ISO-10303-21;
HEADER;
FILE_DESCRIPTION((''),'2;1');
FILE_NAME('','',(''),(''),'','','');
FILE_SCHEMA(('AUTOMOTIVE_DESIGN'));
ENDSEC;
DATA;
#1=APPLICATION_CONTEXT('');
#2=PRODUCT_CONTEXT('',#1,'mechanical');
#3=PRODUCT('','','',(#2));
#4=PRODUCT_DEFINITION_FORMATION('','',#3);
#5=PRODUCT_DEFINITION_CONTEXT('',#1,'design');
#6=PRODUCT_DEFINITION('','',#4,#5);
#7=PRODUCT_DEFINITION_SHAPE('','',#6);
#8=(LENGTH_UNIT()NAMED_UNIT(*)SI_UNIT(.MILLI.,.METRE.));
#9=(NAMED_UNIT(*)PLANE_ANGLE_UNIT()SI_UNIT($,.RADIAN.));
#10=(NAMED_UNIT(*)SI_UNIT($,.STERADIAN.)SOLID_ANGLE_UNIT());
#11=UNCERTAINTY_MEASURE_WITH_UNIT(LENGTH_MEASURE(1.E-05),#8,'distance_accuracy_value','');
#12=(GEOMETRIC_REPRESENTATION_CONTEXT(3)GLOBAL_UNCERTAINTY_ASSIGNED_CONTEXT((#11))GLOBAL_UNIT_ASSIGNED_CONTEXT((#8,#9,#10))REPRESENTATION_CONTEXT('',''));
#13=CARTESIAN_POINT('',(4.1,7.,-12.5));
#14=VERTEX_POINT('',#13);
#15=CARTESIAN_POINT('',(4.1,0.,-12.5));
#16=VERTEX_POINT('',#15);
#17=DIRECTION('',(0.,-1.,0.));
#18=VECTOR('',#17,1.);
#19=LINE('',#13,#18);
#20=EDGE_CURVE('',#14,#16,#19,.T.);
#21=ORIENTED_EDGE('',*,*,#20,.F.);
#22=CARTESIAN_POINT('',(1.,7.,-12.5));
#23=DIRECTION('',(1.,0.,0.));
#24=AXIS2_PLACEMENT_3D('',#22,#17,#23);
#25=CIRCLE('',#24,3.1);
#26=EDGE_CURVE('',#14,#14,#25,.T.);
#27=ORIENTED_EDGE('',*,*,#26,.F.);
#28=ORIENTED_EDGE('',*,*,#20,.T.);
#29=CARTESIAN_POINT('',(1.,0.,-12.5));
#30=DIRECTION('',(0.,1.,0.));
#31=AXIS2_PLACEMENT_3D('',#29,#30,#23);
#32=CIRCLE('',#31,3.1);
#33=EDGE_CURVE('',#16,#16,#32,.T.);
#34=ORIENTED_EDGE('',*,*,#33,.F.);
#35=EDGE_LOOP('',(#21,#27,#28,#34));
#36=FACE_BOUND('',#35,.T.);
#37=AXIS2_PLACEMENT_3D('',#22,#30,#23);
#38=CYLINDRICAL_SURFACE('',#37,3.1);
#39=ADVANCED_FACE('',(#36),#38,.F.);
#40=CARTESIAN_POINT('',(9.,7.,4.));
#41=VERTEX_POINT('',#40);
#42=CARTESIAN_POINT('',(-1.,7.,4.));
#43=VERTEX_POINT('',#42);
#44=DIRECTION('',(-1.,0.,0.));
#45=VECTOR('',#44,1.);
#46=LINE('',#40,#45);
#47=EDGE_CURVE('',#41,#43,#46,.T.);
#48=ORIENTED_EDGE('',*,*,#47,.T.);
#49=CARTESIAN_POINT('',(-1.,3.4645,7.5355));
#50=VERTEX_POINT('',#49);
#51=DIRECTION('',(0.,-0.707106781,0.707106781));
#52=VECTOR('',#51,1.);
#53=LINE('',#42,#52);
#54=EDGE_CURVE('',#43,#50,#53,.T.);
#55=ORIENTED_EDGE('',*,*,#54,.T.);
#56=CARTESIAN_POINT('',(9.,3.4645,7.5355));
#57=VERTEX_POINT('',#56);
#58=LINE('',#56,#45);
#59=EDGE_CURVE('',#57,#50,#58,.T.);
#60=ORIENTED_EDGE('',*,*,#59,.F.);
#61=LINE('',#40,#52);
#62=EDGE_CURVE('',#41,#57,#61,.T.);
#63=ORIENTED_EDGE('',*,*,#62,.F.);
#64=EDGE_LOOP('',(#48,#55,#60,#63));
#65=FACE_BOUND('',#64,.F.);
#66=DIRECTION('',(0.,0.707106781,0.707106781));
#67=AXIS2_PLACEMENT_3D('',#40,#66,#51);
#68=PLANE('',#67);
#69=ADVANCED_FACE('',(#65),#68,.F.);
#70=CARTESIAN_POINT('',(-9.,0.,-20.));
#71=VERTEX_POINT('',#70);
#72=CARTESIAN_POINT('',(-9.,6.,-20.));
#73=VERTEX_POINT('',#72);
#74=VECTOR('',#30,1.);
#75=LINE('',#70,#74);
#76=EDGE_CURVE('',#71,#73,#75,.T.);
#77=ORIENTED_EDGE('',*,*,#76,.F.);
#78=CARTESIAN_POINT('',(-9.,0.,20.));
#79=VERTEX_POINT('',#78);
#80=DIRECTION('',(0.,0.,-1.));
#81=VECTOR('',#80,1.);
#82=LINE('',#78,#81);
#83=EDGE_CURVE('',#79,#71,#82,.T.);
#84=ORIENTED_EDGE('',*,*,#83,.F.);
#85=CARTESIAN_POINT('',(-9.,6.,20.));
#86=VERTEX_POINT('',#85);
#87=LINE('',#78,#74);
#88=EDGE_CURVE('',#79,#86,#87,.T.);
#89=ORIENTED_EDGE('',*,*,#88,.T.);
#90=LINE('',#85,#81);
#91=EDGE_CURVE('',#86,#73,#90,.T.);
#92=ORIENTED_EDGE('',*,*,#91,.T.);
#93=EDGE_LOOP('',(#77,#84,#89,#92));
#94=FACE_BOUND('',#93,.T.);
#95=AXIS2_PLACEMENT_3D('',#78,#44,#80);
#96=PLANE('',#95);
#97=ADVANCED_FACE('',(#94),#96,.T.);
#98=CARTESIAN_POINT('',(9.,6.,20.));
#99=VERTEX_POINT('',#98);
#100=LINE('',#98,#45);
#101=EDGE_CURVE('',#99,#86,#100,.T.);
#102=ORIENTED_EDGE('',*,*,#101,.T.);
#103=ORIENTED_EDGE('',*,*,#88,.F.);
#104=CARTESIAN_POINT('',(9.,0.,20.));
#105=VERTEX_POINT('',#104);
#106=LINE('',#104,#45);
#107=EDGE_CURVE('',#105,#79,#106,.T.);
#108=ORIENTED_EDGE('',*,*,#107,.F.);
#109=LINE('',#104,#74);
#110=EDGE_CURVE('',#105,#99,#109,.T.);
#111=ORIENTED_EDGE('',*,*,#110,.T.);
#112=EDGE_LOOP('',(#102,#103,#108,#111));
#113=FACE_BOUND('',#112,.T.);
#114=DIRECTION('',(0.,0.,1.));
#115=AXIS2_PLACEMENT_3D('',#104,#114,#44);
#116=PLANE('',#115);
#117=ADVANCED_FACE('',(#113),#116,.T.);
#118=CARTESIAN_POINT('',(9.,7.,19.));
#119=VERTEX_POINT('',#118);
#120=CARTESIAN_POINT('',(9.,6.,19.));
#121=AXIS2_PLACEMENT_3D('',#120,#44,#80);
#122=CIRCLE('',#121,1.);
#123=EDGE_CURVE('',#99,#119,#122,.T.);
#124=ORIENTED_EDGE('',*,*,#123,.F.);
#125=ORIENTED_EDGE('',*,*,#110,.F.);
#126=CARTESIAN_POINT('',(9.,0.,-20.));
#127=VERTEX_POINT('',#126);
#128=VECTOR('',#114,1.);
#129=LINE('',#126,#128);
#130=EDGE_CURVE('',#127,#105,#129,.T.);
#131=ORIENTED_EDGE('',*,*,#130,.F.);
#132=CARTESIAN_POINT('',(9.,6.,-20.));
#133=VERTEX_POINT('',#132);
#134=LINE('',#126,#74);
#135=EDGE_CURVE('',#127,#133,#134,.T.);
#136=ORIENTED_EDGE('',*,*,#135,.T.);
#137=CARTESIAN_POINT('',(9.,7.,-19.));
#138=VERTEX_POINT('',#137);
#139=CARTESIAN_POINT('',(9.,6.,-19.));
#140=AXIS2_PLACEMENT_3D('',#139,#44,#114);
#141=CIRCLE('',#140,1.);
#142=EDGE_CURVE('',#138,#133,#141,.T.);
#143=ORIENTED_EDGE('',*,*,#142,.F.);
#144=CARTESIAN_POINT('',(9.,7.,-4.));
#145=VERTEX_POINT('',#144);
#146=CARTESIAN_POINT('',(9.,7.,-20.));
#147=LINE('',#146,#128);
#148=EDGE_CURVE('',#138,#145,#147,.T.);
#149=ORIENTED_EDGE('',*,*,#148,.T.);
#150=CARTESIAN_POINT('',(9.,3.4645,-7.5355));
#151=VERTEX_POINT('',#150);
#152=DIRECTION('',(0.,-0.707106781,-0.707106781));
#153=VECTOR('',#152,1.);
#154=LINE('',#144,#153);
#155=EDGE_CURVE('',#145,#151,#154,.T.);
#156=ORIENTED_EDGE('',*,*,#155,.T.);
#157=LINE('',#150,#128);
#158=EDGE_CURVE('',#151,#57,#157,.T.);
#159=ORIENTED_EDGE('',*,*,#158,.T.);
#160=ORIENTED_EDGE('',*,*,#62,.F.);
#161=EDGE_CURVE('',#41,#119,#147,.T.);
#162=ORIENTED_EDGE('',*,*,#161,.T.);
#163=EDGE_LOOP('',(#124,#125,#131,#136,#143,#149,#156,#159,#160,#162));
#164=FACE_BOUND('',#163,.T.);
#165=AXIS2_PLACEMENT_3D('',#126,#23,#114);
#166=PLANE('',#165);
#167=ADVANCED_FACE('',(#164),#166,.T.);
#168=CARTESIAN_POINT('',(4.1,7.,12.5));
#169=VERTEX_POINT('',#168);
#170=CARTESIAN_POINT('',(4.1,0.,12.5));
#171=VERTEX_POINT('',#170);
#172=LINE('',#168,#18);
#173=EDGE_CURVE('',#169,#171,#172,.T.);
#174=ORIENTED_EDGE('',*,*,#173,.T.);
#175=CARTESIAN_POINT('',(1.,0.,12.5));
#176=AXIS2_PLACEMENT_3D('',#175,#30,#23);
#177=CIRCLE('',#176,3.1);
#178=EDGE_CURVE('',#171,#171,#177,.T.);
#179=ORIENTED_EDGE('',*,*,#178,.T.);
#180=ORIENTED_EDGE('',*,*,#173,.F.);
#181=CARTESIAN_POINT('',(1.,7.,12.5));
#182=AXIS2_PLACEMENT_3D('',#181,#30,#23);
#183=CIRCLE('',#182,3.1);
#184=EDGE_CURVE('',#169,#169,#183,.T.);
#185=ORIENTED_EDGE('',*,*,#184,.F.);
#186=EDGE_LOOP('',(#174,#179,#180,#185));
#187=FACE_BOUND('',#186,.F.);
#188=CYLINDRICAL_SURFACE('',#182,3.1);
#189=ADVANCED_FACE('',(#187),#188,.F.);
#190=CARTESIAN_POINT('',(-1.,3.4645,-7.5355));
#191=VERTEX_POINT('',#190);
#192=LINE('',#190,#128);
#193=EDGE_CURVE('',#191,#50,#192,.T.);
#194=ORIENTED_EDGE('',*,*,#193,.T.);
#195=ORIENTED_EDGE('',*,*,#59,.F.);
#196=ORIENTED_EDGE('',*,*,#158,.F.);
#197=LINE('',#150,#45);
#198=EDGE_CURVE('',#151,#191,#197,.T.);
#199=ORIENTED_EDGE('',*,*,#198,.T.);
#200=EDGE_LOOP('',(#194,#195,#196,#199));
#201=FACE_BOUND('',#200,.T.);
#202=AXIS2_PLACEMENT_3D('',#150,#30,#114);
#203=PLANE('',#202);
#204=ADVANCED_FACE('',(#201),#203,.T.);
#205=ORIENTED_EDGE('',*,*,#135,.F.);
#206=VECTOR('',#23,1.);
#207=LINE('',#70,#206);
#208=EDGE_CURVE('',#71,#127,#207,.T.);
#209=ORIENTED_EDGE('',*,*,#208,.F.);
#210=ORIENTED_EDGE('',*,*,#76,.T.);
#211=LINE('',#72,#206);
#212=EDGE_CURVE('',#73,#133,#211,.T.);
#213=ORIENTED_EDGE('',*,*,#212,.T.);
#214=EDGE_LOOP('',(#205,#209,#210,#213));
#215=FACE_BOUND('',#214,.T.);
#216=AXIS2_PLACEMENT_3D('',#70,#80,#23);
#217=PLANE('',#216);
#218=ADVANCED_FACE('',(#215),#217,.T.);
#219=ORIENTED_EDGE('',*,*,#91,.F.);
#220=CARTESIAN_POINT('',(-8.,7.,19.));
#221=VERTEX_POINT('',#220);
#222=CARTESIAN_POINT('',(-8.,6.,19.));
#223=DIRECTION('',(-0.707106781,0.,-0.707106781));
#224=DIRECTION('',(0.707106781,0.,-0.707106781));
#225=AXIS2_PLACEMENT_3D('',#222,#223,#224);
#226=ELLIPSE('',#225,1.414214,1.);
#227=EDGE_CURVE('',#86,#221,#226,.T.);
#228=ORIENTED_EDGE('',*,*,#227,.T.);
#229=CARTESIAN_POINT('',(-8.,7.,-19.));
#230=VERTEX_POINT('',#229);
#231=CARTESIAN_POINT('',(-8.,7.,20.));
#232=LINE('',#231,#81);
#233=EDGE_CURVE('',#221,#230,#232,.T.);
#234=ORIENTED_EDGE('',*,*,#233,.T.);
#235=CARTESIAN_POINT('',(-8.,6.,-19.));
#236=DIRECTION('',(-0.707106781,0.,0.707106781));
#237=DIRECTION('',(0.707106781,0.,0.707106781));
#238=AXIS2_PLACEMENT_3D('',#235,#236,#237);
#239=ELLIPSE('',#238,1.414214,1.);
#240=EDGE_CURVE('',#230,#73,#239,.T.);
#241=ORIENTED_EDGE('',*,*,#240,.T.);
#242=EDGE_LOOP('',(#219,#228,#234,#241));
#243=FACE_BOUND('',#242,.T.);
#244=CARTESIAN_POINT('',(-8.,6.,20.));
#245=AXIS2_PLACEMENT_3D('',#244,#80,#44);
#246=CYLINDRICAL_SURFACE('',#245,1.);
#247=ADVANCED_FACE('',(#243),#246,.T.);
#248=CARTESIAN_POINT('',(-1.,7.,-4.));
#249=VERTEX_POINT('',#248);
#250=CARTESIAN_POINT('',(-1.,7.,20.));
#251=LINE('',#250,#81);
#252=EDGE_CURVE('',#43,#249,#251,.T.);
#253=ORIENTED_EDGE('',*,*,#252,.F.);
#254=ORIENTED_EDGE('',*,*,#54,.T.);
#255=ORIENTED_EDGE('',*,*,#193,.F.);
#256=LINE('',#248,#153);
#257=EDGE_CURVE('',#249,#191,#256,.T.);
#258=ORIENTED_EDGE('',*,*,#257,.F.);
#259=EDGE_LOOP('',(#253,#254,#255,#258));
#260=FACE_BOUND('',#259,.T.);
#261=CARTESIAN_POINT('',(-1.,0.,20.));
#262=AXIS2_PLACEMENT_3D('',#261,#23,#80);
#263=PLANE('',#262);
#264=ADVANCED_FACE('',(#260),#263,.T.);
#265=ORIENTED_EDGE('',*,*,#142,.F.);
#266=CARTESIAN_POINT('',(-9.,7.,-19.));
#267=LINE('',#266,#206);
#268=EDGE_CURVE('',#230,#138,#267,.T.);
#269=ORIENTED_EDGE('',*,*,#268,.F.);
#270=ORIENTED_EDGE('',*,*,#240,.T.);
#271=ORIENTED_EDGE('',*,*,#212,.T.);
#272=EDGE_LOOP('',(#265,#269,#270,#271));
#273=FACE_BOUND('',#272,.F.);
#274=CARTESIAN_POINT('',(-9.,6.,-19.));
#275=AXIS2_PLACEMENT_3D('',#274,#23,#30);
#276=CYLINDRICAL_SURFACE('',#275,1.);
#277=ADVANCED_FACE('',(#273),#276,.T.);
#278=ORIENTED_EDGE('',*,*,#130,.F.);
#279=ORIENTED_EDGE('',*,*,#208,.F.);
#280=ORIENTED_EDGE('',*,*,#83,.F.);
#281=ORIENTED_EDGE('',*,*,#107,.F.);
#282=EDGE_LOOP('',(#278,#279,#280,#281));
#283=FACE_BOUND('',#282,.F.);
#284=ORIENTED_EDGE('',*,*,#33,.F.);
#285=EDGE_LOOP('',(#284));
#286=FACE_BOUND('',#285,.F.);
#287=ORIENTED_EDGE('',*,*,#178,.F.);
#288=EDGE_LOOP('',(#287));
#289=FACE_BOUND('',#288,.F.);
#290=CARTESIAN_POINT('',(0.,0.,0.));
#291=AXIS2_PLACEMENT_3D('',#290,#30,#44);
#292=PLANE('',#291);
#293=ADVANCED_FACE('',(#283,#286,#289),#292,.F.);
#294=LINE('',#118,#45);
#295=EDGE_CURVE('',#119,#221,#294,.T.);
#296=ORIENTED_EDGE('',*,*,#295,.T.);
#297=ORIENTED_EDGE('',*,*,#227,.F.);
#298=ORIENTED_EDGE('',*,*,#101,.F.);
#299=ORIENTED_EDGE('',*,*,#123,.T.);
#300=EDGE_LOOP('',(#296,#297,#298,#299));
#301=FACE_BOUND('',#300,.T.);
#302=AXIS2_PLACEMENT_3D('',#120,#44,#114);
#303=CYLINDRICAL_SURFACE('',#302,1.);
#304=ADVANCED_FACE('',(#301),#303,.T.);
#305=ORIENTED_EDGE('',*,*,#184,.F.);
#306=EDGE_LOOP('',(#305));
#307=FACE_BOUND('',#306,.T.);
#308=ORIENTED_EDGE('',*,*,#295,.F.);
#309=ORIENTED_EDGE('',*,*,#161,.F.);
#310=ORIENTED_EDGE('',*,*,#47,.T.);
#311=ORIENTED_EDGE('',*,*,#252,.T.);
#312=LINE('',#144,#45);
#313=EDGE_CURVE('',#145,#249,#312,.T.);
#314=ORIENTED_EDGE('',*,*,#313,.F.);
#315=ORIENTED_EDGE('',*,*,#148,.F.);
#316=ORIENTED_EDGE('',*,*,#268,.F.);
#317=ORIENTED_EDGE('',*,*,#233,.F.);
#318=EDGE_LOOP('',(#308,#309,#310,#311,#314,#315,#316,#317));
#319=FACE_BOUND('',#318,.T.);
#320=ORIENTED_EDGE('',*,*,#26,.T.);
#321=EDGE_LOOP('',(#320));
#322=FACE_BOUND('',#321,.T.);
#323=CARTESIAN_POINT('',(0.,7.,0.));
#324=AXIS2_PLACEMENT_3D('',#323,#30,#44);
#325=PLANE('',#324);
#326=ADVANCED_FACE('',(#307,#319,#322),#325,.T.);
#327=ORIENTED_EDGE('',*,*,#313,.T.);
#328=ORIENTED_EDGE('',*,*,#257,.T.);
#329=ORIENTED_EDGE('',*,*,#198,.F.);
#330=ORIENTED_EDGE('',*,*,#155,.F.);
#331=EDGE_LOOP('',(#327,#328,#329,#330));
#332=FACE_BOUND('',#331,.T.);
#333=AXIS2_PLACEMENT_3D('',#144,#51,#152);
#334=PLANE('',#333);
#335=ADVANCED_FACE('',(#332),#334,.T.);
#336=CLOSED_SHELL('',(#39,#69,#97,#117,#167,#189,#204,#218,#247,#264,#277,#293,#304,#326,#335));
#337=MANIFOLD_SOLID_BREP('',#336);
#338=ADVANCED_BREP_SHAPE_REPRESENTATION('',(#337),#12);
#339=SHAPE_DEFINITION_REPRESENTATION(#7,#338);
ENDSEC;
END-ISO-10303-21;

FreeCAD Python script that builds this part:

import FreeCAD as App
import Part
import Sketcher


def edges_at(feature, points):
    """Names of the edges that pass closest to the given points."""
    edges = feature.Shape.Edges
    near = lambda p: min(range(len(edges)), key=lambda i: edges[i].distToShape(Part.Vertex(*p))[0])
    return sorted({f"Edge{near(p) + 1}" for p in points})


def add_polygon(sketch, points):
    """Adds a closed chain of lines whose ends are joined by coincident constraints."""
    first, n = sketch.GeometryCount, len(points)
    for a, b in zip(points, points[1:] + points[:1]):
        sketch.addGeometry(Part.LineSegment(App.Vector(*a, 0), App.Vector(*b, 0)), False)
    for i in range(n):
        sketch.addConstraint(Sketcher.Constraint("Coincident", first + i, 2, first + (i + 1) % n, 1))

doc = App.newDocument("Part")
body = doc.addObject("PartDesign::Body", "Body")

sketch1 = body.newObject("Sketcher::SketchObject", "Sketch")
sketch1.AttachmentSupport = (doc.getObject("XZ_Plane"), [""])
sketch1.MapMode = "FlatFace"
add_polygon(sketch1, [(-9, 20), (9, 20), (9, -20), (-9, -20)])
sketch1.addConstraint([
    Sketcher.Constraint("Horizontal", 0),
    Sketcher.Constraint("Vertical", 1),
    Sketcher.Constraint("Horizontal", 2),
    Sketcher.Constraint("Vertical", 3),
    Sketcher.Constraint("Symmetric", 0, 2, 2, 2, -1, 1),
    Sketcher.Constraint("DistanceX", 0, 1, 0, 2, 18.0),
    Sketcher.Constraint("DistanceY", 1, 2, 1, 1, 40.0),
])
pad1 = body.newObject("PartDesign::Pad", "Pad")
pad1.Profile = sketch1
pad1.Length = 7
pad1.Reversed = True

sketch2 = body.newObject("Sketcher::SketchObject", "Sketch001")
sketch2.AttachmentSupport = (doc.getObject("XZ_Plane"), [""])
sketch2.MapMode = "FlatFace"
sketch2.AttachmentOffset = App.Placement(App.Vector(0, 0, -7), App.Rotation())
sketch2.addGeometry(Part.Circle(App.Vector(1, 12.5, 0), App.Vector(0, 0, 1), 3.1), False)
sketch2.addConstraint([
    Sketcher.Constraint("Diameter", 0, 6.2),
    Sketcher.Constraint("DistanceX", -1, 1, 0, 3, 1.0),
    Sketcher.Constraint("DistanceY", -1, 1, 0, 3, 12.5),
])
pocket1 = body.newObject("PartDesign::Pocket", "Pocket")
pocket1.Profile = sketch2
pocket1.Type = "ThroughAll"
pocket1.Reversed = True
doc.recompute()

mirrored = body.newObject("PartDesign::Mirrored", "Mirrored")
mirrored.Originals = [pocket1]
mirrored.MirrorPlane = (doc.getObject("XY_Plane"), [""])
body.Tip = mirrored

sketch3 = body.newObject("Sketcher::SketchObject", "Sketch002")
sketch3.AttachmentSupport = (doc.getObject("YZ_Plane"), [""])
sketch3.MapMode = "FlatFace"
sketch3.AttachmentOffset = App.Placement(App.Vector(0, 0, 9), App.Rotation())
add_polygon(sketch3, [(7, -4), (7, 4), (3.5, 7.5), (3.5, -7.5)])
sketch3.addConstraint([
    Sketcher.Constraint("Vertical", 0),
    Sketcher.Constraint("Vertical", 2),
    Sketcher.Constraint("Perpendicular", 1, 3),
    Sketcher.Constraint("Equal", 1, 3),
    Sketcher.Constraint("DistanceY", 0, 1, 0, 2, 8.0),
    Sketcher.Constraint("Distance", 1, 5.0),
    Sketcher.Constraint("DistanceX", -1, 1, 0, 2, 7.0),
    Sketcher.Constraint("DistanceY", -1, 1, 0, 2, 4.0),
])
pocket2 = body.newObject("PartDesign::Pocket", "Pocket001")
pocket2.Profile = sketch3
pocket2.Length = 10
doc.recompute()

fillet = body.newObject("PartDesign::Fillet", "Fillet")
fillet.Base = (pocket2, edges_at(pocket2, [(0, 7, -20), (-9, 7, 0), (0, 7, 20)]))
fillet.Radius = 1

doc.recompute()
